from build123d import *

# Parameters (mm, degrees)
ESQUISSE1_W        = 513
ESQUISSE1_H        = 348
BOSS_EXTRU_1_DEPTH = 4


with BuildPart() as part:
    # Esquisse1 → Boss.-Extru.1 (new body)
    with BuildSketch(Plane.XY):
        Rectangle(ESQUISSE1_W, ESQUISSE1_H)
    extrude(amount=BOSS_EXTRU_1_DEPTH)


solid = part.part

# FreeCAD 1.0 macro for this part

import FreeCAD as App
import Part
import Sketcher

V = App.Vector
Q = App.Units.Quantity


def add_polygon(sketch, points):
    """Adds a closed chain of lines whose ends are joined by coincident constraints."""
    first, n = sketch.GeometryCount, len(points)
    for a, b in zip(points, points[1:] + points[:1]):
        sketch.addGeometry(Part.LineSegment(App.Vector(*a, 0), App.Vector(*b, 0)), False)
    for i in range(n):
        sketch.addConstraint(Sketcher.Constraint("Coincident", first + i, 2, first + (i + 1) % n, 1))

doc = App.newDocument("Part")
body = doc.addObject("PartDesign::Body", "Body")

sketch1 = body.newObject("Sketcher::SketchObject", "Sketch")
sketch1.AttachmentSupport = (doc.getObject("XY_Plane"), [""])
sketch1.MapMode = "FlatFace"
add_polygon(sketch1, [(-256.5, 174), (-256.5, -174), (256.5, -174), (256.5, 174)])
sketch1.addConstraint([
    Sketcher.Constraint("Vertical", 0),
    Sketcher.Constraint("Horizontal", 1),
    Sketcher.Constraint("Vertical", 2),
    Sketcher.Constraint("Horizontal", 3),
    Sketcher.Constraint("Symmetric", 0, 2, 2, 2, -1, 1),
    Sketcher.Constraint("DistanceX", 1, 1, 1, 2, Q("513 mm")),
    Sketcher.Constraint("DistanceY", 0, 2, 0, 1, Q("348 mm")),
])
pad1 = body.newObject("PartDesign::Pad", "Pad")
pad1.Profile = sketch1
pad1.Length = 4

doc.recompute()
